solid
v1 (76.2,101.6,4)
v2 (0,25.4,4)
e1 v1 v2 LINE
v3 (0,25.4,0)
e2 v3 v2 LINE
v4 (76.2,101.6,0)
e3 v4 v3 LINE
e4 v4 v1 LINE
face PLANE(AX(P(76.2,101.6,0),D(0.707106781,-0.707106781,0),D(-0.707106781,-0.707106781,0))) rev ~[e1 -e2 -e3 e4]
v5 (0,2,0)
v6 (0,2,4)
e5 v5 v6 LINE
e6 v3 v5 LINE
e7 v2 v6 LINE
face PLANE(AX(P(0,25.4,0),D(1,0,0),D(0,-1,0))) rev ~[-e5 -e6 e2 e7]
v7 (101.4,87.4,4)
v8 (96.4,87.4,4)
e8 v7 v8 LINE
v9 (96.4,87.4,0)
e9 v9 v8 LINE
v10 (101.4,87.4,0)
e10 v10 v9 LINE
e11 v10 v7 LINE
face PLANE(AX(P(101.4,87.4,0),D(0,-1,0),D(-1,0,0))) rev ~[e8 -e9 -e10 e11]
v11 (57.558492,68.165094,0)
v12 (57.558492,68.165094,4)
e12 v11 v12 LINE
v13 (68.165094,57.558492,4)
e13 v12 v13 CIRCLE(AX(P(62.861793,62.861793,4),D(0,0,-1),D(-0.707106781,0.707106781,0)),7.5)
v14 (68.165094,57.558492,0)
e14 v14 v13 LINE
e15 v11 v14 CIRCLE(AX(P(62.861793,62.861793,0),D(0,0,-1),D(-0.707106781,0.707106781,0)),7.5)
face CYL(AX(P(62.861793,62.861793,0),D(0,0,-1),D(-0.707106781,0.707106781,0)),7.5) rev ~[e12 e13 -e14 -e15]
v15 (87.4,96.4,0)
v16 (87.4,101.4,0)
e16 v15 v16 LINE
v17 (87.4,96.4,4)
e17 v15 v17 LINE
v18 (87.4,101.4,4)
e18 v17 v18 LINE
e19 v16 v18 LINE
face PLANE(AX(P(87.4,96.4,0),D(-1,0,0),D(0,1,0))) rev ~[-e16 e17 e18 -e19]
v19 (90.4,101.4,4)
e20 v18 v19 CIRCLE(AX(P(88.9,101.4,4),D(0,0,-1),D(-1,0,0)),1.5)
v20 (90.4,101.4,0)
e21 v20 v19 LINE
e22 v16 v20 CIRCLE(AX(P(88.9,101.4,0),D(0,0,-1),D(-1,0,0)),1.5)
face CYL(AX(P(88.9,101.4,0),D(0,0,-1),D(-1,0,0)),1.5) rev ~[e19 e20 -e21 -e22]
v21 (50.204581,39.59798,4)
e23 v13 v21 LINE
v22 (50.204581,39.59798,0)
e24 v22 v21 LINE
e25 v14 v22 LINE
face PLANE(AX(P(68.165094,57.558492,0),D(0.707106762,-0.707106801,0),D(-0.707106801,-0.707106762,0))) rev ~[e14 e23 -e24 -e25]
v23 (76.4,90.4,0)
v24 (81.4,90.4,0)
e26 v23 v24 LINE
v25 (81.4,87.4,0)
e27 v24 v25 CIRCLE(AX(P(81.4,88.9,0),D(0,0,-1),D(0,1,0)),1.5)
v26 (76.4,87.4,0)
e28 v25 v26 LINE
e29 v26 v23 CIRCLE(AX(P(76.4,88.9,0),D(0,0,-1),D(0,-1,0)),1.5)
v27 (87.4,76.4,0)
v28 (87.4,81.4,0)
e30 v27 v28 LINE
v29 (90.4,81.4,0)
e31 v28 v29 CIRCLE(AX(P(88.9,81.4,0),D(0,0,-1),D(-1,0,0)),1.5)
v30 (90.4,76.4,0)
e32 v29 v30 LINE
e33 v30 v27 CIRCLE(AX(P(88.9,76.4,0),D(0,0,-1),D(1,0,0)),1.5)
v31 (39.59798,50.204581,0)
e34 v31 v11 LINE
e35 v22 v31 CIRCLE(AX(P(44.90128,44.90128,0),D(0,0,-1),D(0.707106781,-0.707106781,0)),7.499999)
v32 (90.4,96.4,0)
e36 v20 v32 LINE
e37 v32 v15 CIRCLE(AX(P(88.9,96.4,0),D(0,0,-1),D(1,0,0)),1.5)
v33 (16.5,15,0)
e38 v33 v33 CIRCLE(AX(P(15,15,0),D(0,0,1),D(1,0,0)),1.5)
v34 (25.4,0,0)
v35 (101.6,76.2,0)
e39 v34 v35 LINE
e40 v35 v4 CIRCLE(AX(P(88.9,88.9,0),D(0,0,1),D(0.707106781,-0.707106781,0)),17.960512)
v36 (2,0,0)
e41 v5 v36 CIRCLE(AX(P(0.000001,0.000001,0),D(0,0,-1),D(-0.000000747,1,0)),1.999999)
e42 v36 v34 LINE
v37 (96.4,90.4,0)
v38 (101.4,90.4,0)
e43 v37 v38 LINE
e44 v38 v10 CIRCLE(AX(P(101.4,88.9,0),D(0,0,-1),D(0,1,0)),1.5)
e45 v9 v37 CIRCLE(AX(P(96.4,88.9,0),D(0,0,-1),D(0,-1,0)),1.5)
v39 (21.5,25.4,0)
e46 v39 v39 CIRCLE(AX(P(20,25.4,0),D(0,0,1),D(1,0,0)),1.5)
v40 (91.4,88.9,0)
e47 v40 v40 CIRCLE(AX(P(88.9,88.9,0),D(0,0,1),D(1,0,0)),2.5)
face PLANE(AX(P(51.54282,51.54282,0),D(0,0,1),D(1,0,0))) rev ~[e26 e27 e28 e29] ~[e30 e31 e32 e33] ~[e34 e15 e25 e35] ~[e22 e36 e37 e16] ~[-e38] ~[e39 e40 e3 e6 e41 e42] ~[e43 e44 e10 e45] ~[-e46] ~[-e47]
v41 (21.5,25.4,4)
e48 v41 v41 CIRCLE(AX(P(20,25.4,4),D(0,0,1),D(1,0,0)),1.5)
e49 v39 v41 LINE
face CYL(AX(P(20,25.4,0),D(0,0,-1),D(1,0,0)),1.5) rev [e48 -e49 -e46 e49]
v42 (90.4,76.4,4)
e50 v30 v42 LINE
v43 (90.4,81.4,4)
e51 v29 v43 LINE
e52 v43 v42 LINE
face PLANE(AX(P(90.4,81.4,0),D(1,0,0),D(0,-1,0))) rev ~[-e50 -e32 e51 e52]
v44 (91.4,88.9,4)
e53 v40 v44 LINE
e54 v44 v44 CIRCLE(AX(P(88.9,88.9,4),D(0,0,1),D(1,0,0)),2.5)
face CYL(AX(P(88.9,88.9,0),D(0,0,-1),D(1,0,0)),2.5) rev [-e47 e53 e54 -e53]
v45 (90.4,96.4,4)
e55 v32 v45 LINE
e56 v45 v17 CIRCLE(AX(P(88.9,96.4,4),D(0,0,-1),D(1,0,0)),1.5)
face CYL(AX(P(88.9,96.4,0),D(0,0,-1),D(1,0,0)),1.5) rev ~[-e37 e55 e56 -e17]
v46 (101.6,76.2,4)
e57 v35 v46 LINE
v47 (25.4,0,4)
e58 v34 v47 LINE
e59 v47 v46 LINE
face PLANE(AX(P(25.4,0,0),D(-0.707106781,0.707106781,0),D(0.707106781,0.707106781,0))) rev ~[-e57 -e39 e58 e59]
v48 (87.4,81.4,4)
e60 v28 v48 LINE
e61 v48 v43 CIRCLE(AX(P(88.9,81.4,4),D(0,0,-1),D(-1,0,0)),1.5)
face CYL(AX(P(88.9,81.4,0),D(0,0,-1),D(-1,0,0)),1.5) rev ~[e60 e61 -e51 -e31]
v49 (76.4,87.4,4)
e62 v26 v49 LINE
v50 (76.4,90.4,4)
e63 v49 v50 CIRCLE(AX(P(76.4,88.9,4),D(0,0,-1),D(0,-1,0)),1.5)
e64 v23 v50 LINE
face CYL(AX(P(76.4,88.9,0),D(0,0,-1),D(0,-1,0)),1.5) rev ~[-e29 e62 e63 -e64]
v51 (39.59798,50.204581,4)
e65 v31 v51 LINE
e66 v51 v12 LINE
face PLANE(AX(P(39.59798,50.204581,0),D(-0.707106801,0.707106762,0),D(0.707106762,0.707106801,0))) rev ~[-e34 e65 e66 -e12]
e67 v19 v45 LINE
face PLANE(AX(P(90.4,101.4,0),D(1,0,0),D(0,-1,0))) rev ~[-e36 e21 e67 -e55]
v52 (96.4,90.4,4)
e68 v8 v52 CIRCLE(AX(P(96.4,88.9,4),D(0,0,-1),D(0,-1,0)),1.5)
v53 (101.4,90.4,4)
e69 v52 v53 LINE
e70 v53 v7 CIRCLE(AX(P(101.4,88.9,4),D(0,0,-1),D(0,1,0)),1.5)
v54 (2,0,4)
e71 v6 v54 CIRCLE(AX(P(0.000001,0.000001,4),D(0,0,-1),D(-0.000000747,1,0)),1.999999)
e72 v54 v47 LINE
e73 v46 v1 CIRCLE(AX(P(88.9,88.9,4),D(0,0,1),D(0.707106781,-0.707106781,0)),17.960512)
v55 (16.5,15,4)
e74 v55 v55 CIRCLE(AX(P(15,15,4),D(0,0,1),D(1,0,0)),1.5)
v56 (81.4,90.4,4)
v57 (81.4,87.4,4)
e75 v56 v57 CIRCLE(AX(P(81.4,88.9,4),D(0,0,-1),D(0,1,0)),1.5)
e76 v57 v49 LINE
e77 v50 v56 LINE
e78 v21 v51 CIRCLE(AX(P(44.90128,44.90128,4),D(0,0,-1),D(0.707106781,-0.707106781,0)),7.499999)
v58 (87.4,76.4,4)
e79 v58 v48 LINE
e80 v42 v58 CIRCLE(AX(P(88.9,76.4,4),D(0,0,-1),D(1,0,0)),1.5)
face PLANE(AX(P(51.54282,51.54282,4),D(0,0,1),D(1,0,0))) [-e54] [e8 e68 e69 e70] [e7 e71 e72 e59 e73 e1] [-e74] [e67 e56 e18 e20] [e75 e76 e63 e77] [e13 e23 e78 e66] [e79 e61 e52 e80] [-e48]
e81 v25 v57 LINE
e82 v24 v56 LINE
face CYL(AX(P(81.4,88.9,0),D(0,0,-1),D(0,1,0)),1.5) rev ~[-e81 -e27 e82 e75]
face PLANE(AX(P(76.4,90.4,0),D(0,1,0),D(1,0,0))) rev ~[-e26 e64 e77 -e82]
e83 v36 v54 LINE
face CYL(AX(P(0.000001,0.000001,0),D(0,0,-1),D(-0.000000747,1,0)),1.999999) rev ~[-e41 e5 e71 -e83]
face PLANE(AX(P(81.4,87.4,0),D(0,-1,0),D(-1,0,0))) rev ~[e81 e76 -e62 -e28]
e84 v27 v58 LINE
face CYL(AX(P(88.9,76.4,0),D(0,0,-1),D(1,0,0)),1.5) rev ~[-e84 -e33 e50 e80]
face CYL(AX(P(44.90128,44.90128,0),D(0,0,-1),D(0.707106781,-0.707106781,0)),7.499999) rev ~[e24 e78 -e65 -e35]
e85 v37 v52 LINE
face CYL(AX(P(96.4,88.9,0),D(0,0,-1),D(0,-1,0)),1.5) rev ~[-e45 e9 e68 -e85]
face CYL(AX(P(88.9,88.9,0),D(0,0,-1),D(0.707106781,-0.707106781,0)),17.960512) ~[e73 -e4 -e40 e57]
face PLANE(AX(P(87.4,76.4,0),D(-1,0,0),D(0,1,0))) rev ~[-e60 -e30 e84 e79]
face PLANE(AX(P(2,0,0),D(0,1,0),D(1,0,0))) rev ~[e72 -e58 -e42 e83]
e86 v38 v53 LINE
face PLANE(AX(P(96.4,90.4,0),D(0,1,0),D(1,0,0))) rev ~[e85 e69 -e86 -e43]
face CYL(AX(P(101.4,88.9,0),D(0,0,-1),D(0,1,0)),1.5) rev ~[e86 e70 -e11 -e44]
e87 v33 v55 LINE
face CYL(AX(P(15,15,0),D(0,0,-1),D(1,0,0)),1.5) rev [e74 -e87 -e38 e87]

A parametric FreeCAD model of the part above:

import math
import FreeCAD as App
import Part
import Sketcher
from FreeCAD import Vector

doc = App.newDocument("Part")
body = doc.addObject("PartDesign::Body", "Body")

sketch1 = body.newObject("Sketcher::SketchObject", "Sketch")
sketch1.AttachmentSupport = (doc.getObject("XY_Plane"), [""])
sketch1.MapMode = "FlatFace"
sketch1.addGeometry(Part.LineSegment(Vector(76.2, 101.6, 0), Vector(0, 25.4, 0)), False)
sketch1.addGeometry(Part.LineSegment(Vector(0, 25.4, 0), Vector(0, 2, 0)), False)
sketch1.addGeometry(Part.ArcOfCircle(Part.Circle(Vector(0, 0, 0), Vector(0, 0, 1), 2), math.radians(0), math.radians(90)), False)
sketch1.addGeometry(Part.LineSegment(Vector(2, 0, 0), Vector(25.4, 0, 0)), False)
sketch1.addGeometry(Part.LineSegment(Vector(25.4, 0, 0), Vector(101.6, 76.2, 0)), False)
sketch1.addGeometry(Part.ArcOfCircle(Part.Circle(Vector(88.9, 88.9, 0), Vector(0, 0, 1), 18), math.radians(-45), math.radians(135)), False)
sketch1.addGeometry(Part.Circle(Vector(15, 15, 0), Vector(0, 0, 1), 1.5), False)
sketch1.addGeometry(Part.Circle(Vector(20, 25.4, 0), Vector(0, 0, 1), 1.5), False)
sketch1.addGeometry(Part.ArcOfCircle(Part.Circle(Vector(62.9, 62.9, 0), Vector(0, 0, 1), 7.5), math.radians(-45), math.radians(135)), False)
sketch1.addGeometry(Part.LineSegment(Vector(68.2, 57.6, 0), Vector(50.2, 39.6, 0)), False)
sketch1.addGeometry(Part.ArcOfCircle(Part.Circle(Vector(44.9, 44.9, 0), Vector(0, 0, 1), 7.5), math.radians(135), math.radians(315)), False)
sketch1.addGeometry(Part.LineSegment(Vector(39.6, 50.2, 0), Vector(57.6, 68.2, 0)), False)
sketch1.addGeometry(Part.ArcOfCircle(Part.Circle(Vector(88.9, 81.4, 0), Vector(0, 0, 1), 1.5), math.radians(0), math.radians(180)), False)
sketch1.addGeometry(Part.LineSegment(Vector(90.4, 81.4, 0), Vector(90.4, 76.4, 0)), False)
sketch1.addGeometry(Part.ArcOfCircle(Part.Circle(Vector(88.9, 76.4, 0), Vector(0, 0, 1), 1.5), math.radians(180), math.radians(360)), False)
sketch1.addGeometry(Part.LineSegment(Vector(87.4, 76.4, 0), Vector(87.4, 81.4, 0)), False)
sketch1.addGeometry(Part.ArcOfCircle(Part.Circle(Vector(81.4, 88.9, 0), Vector(0, 0, 1), 1.5), math.radians(-90), math.radians(90)), False)
sketch1.addGeometry(Part.LineSegment(Vector(81.4, 87.4, 0), Vector(76.4, 87.4, 0)), False)
sketch1.addGeometry(Part.ArcOfCircle(Part.Circle(Vector(76.4, 88.9, 0), Vector(0, 0, 1), 1.5), math.radians(90), math.radians(270)), False)
sketch1.addGeometry(Part.LineSegment(Vector(76.4, 90.4, 0), Vector(81.4, 90.4, 0)), False)
sketch1.addGeometry(Part.Circle(Vector(88.9, 88.9, 0), Vector(0, 0, 1), 2.5), False)
sketch1.addGeometry(Part.ArcOfCircle(Part.Circle(Vector(96.4, 88.9, 0), Vector(0, 0, 1), 1.5), math.radians(90), math.radians(270)), False)
sketch1.addGeometry(Part.LineSegment(Vector(96.4, 90.4, 0), Vector(101.4, 90.4, 0)), False)
sketch1.addGeometry(Part.ArcOfCircle(Part.Circle(Vector(101.4, 88.9, 0), Vector(0, 0, 1), 1.5), math.radians(-90), math.radians(90)), False)
sketch1.addGeometry(Part.LineSegment(Vector(101.4, 87.4, 0), Vector(96.4, 87.4, 0)), False)
sketch1.addGeometry(Part.ArcOfCircle(Part.Circle(Vector(88.9, 96.4, 0), Vector(0, 0, 1), 1.5), math.radians(180), math.radians(360)), False)
sketch1.addGeometry(Part.LineSegment(Vector(87.4, 96.4, 0), Vector(87.4, 101.4, 0)), False)
sketch1.addGeometry(Part.ArcOfCircle(Part.Circle(Vector(88.9, 101.4, 0), Vector(0, 0, 1), 1.5), math.radians(0), math.radians(180)), False)
sketch1.addGeometry(Part.LineSegment(Vector(90.4, 101.4, 0), Vector(90.4, 96.4, 0)), False)
sketch1.addConstraint(Sketcher.Constraint("Coincident", 0, 2, 1, 1))
sketch1.addConstraint(Sketcher.Constraint("Coincident", 1, 2, 2, 2))
sketch1.addConstraint(Sketcher.Constraint("Coincident", 2, 1, 3, 1))
sketch1.addConstraint(Sketcher.Constraint("Coincident", 3, 2, 4, 1))
sketch1.addConstraint(Sketcher.Constraint("Tangent", 4, 2, 5, 1))
sketch1.addConstraint(Sketcher.Constraint("Tangent", 5, 2, 0, 1))
sketch1.addConstraint(Sketcher.Constraint("Tangent", 8, 1, 9, 1))
sketch1.addConstraint(Sketcher.Constraint("Tangent", 9, 2, 10, 2))
sketch1.addConstraint(Sketcher.Constraint("Tangent", 10, 1, 11, 1))
sketch1.addConstraint(Sketcher.Constraint("Tangent", 11, 2, 8, 2))
sketch1.addConstraint(Sketcher.Constraint("Tangent", 12, 1, 13, 1))
sketch1.addConstraint(Sketcher.Constraint("Tangent", 13, 2, 14, 2))
sketch1.addConstraint(Sketcher.Constraint("Tangent", 14, 1, 15, 1))
sketch1.addConstraint(Sketcher.Constraint("Tangent", 15, 2, 12, 2))
sketch1.addConstraint(Sketcher.Constraint("Tangent", 16, 1, 17, 1))
sketch1.addConstraint(Sketcher.Constraint("Tangent", 17, 2, 18, 2))
sketch1.addConstraint(Sketcher.Constraint("Tangent", 18, 1, 19, 1))
sketch1.addConstraint(Sketcher.Constraint("Tangent", 19, 2, 16, 2))
sketch1.addConstraint(Sketcher.Constraint("Tangent", 21, 1, 22, 1))
sketch1.addConstraint(Sketcher.Constraint("Tangent", 22, 2, 23, 2))
sketch1.addConstraint(Sketcher.Constraint("Tangent", 23, 1, 24, 1))
sketch1.addConstraint(Sketcher.Constraint("Tangent", 24, 2, 21, 2))
sketch1.addConstraint(Sketcher.Constraint("Tangent", 25, 1, 26, 1))
sketch1.addConstraint(Sketcher.Constraint("Tangent", 26, 2, 27, 2))
sketch1.addConstraint(Sketcher.Constraint("Tangent", 27, 1, 28, 1))
sketch1.addConstraint(Sketcher.Constraint("Tangent", 28, 2, 25, 2))
sketch1.addConstraint(Sketcher.Constraint("Vertical", 1))
sketch1.addConstraint(Sketcher.Constraint("Horizontal", 3))
sketch1.addConstraint(Sketcher.Constraint("Vertical", 13))
sketch1.addConstraint(Sketcher.Constraint("Vertical", 15))
sketch1.addConstraint(Sketcher.Constraint("Horizontal", 17))
sketch1.addConstraint(Sketcher.Constraint("Horizontal", 19))
sketch1.addConstraint(Sketcher.Constraint("Horizontal", 22))
sketch1.addConstraint(Sketcher.Constraint("Horizontal", 24))
sketch1.addConstraint(Sketcher.Constraint("Vertical", 26))
sketch1.addConstraint(Sketcher.Constraint("Vertical", 28))
sketch1.addConstraint(Sketcher.Constraint("Coincident", 2, 3, -1, 1))
sketch1.addConstraint(Sketcher.Constraint("Coincident", 20, 3, 5, 3))
sketch1.addConstraint(Sketcher.Constraint("Equal", 6, 7))
sketch1.addConstraint(Sketcher.Constraint("Equal", 8, 10))
sketch1.addConstraint(Sketcher.Constraint("Equal", 7, 12))
sketch1.addConstraint(Sketcher.Constraint("Equal", 14, 16))
sketch1.addConstraint(Sketcher.Constraint("Equal", 18, 21))
sketch1.addConstraint(Sketcher.Constraint("Equal", 23, 25))
sketch1.addConstraint(Sketcher.Constraint("PointOnObject", 0, 2, -2))
sketch1.addConstraint(Sketcher.Constraint("PointOnObject", 2, 1, -1))
sketch1.addConstraint(Sketcher.Constraint("Parallel", 0, 4))
sketch1.addConstraint(Sketcher.Constraint("Parallel", 4, 9))
sketch1.addConstraint(Sketcher.Constraint("Horizontal", 5, 3, 16, 3))
sketch1.addConstraint(Sketcher.Constraint("Horizontal", 20, 3, 21, 3))
sketch1.addConstraint(Sketcher.Constraint("Horizontal", 7, 3, 0, 2))
sketch1.addConstraint(Sketcher.Constraint("Vertical", 5, 3, 12, 3))
sketch1.addConstraint(Sketcher.Constraint("Vertical", 20, 3, 25, 3))
sketch1.addConstraint(Sketcher.Constraint("Equal", 19, 22))
sketch1.addConstraint(Sketcher.Constraint("Equal", 3, 1))
sketch1.addConstraint(Sketcher.Constraint("Equal", 24, 13))
sketch1.addConstraint(Sketcher.Constraint("Equal", 15, 26))
sketch1.addConstraint(Sketcher.Constraint("Equal", 0, 4))
sketch1.addConstraint(Sketcher.Constraint("Diameter", 6, 3.0))
sketch1.addConstraint(Sketcher.Constraint("Diameter", 20, 5.0))
sketch1.addConstraint(Sketcher.Constraint("Radius", 2, 1.999999))
sketch1.addConstraint(Sketcher.Constraint("Radius", 8, 7.5))
sketch1.addConstraint(Sketcher.Constraint("DistanceX", 17, 2, 17, 1, 5.0))
sketch1.addConstraint(Sketcher.Constraint("DistanceX", 3, 1, 3, 2, 23.4))
sketch1.addConstraint(Sketcher.Constraint("DistanceX", -1, 1, 6, 3, 15.0))
sketch1.addConstraint(Sketcher.Constraint("DistanceY", -1, 1, 6, 3, 15.0))
sketch1.addConstraint(Sketcher.Constraint("DistanceX", -1, 1, 7, 3, 20.0))
sketch1.addConstraint(Sketcher.Constraint("DistanceY", 7, 3, 12, 3, 56.0))
sketch1.addConstraint(Sketcher.Constraint("DistanceX", 16, 3, 21, 3, 15.0))
sketch1.addConstraint(Sketcher.Constraint("DistanceX", 12, 1, 21, 3, 6.0))
sketch1.addConstraint(Sketcher.Constraint("DistanceY", 15, 2, 16, 1, 6.0))
sketch1.addConstraint(Sketcher.Constraint("DistanceY", 21, 1, 25, 3, 6.0))
sketch1.addConstraint(Sketcher.Constraint("Distance", 9, 25.4))
sketch1.addConstraint(Sketcher.Constraint("DistanceX", -1, 1, 10, 3, 44.90128))
sketch1.addConstraint(Sketcher.Constraint("DistanceY", -1, 1, 10, 3, 44.90128))
pad1 = body.newObject("PartDesign::Pad", "Pad")
pad1.Profile = sketch1
pad1.Length = 4

doc.recompute()
